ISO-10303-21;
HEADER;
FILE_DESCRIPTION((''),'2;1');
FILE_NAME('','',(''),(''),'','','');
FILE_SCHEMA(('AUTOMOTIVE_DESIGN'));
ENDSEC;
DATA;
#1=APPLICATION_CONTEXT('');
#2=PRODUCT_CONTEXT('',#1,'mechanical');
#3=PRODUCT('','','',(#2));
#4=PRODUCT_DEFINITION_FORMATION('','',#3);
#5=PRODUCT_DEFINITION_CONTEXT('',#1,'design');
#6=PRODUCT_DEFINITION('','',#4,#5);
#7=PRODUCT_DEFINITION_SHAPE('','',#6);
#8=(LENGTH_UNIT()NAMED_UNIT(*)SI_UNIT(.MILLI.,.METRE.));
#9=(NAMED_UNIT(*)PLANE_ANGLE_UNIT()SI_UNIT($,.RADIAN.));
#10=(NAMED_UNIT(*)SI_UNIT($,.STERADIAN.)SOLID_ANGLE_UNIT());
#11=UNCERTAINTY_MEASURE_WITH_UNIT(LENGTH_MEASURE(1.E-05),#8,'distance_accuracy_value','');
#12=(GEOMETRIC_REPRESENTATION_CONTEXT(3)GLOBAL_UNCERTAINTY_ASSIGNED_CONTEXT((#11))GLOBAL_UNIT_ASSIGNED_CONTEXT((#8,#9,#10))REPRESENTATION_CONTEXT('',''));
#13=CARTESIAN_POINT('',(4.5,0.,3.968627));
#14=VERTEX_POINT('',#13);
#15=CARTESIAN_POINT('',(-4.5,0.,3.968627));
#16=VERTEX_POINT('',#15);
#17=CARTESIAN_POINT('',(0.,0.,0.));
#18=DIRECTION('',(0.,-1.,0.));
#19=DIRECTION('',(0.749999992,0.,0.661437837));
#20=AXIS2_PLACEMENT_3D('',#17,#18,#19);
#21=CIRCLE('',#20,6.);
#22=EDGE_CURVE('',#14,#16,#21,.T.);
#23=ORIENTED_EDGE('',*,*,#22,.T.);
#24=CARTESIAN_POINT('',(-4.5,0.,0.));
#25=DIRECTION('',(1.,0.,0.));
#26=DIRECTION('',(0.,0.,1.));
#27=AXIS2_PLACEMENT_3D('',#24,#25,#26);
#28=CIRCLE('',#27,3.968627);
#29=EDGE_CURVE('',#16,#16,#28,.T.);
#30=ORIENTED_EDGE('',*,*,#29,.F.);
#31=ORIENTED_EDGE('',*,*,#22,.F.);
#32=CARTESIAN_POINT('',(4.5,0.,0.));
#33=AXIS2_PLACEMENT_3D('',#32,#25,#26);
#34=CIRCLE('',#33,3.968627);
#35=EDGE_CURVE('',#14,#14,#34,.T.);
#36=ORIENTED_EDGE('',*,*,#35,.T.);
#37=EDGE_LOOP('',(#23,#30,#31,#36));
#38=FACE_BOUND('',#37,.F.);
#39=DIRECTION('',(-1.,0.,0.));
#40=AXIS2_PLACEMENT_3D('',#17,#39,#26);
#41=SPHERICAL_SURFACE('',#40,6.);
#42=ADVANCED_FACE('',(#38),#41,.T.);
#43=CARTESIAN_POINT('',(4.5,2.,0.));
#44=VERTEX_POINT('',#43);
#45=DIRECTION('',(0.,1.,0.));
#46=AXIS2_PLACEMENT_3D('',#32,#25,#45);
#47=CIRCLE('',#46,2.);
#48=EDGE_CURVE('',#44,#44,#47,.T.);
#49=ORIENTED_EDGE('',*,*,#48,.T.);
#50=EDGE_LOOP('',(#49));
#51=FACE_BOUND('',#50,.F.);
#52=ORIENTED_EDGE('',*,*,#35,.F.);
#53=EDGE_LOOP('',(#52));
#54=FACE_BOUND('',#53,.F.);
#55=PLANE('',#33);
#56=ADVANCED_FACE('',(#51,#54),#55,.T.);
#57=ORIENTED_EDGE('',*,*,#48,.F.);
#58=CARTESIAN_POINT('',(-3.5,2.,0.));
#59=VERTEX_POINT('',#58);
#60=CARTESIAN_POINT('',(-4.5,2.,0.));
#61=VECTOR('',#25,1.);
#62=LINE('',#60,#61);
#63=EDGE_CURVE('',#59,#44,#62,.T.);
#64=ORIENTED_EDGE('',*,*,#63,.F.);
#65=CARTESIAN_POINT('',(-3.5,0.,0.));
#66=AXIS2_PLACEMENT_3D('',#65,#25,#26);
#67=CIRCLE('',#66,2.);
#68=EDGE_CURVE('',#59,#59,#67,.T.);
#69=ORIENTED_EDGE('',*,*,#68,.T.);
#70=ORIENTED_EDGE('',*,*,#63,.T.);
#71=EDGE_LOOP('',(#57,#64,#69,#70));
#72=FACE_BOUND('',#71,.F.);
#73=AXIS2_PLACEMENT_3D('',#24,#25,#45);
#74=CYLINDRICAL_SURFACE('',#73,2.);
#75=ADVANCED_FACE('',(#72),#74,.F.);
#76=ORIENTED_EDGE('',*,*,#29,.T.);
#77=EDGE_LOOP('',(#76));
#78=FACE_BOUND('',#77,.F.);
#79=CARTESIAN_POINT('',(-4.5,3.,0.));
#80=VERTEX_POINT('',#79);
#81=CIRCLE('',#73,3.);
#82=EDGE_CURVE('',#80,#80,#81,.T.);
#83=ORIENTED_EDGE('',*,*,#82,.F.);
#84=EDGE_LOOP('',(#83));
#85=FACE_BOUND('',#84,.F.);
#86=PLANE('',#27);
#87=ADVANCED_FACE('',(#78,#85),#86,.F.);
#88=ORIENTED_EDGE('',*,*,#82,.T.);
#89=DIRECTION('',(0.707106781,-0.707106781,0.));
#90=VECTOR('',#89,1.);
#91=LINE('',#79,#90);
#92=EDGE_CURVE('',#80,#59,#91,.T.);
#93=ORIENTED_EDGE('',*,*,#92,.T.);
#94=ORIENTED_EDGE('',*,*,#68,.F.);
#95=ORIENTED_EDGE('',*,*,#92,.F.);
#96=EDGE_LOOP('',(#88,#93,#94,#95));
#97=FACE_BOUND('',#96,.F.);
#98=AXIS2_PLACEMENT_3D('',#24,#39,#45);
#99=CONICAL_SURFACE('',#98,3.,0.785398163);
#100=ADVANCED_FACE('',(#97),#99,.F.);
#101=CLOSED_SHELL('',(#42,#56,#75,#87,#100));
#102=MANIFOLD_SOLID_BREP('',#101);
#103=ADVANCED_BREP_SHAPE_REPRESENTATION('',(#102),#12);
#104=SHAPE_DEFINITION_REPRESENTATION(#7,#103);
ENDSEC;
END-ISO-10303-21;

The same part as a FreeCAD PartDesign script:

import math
import FreeCAD as App
import Part
import Sketcher
from FreeCAD import Vector
Q = App.Units.Quantity

doc = App.newDocument("Part")
params = doc.addObject("Spreadsheet::Sheet", "Params")
for row, (alias, value) in enumerate([
    ("sketch1_radius", "6 mm"),
    ("sketch1_width", "9 mm"),
    ("revolution_angle", "360 deg"),
    ("sketch2_diameter", "4 mm"),
    ("hole_diameter", "4 mm"),
    ("hole_depth", "10 mm"),
    ("hole_csink_diameter", "6 mm"),
], start=1):
    params.set(f"A{row}", alias)
    params.set(f"B{row}", "=" + value)
    params.setAlias(f"B{row}", alias)

body = doc.addObject("PartDesign::Body", "Body")

# Sketch on XZ plane
sketch1 = body.newObject("Sketcher::SketchObject", "Sketch")
sketch1.AttachmentSupport = (doc.getObject("XZ_Plane"), [""])
sketch1.MapMode = "FlatFace"
sketch1.addGeometry([
    Part.LineSegment(Vector(4.5, 0, 0), Vector(4.5, 4, 0)),
    Part.ArcOfCircle(Part.Circle(Vector(0, 0, 0), Vector(0, 0, 1), 6), math.radians(41), math.radians(139)),
    Part.LineSegment(Vector(-4.5, 4, 0), Vector(-4.5, 0, 0)),
    Part.LineSegment(Vector(-4.5, 0, 0), Vector(4.5, 0, 0)),
], False)
sketch1.addConstraint([
    Sketcher.Constraint("Coincident", 0, 2, 1, 1),
    Sketcher.Constraint("Coincident", 1, 2, 2, 1),
    Sketcher.Constraint("Coincident", 2, 2, 3, 1),
    Sketcher.Constraint("Coincident", 3, 2, 0, 1),
    Sketcher.Constraint("Vertical", 0),
    Sketcher.Constraint("Vertical", 2),
    Sketcher.Constraint("Horizontal", 3),
    Sketcher.Constraint("Coincident", 1, 3, -1, 1),
    Sketcher.Constraint("Symmetric", 2, 2, 3, 2, -1, 1),
    Sketcher.Constraint("Radius", 1, Q("6 mm")),
    Sketcher.Constraint("DistanceX", 3, 1, 3, 2, Q("9 mm")),
])
sketch1.setExpression("Constraints[9]", "Params.sketch1_radius")
sketch1.setExpression("Constraints[10]", "Params.sketch1_width")
revolution = body.newObject("PartDesign::Revolution", "Revolution")
revolution.Profile = sketch1
revolution.ReferenceAxis = (sketch1, ["H_Axis"])
revolution.setExpression("Angle", "Params.revolution_angle")

# Sketch on YZ plane
sketch2 = body.newObject("Sketcher::SketchObject", "Sketch001")
sketch2.AttachmentSupport = (doc.getObject("YZ_Plane"), [""])
sketch2.MapMode = "FlatFace"
sketch2.AttachmentOffset = App.Placement(Vector(0, 0, -4.5), App.Rotation())
sketch2.addGeometry(Part.Circle(Vector(0, 0, 0), Vector(0, 0, 1), 2), False)
sketch2.addConstraint([
    Sketcher.Constraint("Coincident", 0, 3, -1, 1),
    Sketcher.Constraint("Diameter", 0, Q("4 mm")),
])
sketch2.setExpression("Constraints[1]", "Params.sketch2_diameter")
doc.recompute()
hole = body.newObject("PartDesign::Hole", "Hole")
hole.Profile = sketch2
hole.ThreadType = "None"
hole.setExpression("Diameter", "Params.hole_diameter")
hole.DepthType = "Dimension"
hole.setExpression("Depth", "Params.hole_depth")
hole.DrillPoint = "Flat"
hole.HoleCutType = "Countersink"
hole.setExpression("HoleCutDiameter", "Params.hole_csink_diameter")
hole.HoleCutCountersinkAngle = 90
hole.Reversed = True

doc.recompute()
